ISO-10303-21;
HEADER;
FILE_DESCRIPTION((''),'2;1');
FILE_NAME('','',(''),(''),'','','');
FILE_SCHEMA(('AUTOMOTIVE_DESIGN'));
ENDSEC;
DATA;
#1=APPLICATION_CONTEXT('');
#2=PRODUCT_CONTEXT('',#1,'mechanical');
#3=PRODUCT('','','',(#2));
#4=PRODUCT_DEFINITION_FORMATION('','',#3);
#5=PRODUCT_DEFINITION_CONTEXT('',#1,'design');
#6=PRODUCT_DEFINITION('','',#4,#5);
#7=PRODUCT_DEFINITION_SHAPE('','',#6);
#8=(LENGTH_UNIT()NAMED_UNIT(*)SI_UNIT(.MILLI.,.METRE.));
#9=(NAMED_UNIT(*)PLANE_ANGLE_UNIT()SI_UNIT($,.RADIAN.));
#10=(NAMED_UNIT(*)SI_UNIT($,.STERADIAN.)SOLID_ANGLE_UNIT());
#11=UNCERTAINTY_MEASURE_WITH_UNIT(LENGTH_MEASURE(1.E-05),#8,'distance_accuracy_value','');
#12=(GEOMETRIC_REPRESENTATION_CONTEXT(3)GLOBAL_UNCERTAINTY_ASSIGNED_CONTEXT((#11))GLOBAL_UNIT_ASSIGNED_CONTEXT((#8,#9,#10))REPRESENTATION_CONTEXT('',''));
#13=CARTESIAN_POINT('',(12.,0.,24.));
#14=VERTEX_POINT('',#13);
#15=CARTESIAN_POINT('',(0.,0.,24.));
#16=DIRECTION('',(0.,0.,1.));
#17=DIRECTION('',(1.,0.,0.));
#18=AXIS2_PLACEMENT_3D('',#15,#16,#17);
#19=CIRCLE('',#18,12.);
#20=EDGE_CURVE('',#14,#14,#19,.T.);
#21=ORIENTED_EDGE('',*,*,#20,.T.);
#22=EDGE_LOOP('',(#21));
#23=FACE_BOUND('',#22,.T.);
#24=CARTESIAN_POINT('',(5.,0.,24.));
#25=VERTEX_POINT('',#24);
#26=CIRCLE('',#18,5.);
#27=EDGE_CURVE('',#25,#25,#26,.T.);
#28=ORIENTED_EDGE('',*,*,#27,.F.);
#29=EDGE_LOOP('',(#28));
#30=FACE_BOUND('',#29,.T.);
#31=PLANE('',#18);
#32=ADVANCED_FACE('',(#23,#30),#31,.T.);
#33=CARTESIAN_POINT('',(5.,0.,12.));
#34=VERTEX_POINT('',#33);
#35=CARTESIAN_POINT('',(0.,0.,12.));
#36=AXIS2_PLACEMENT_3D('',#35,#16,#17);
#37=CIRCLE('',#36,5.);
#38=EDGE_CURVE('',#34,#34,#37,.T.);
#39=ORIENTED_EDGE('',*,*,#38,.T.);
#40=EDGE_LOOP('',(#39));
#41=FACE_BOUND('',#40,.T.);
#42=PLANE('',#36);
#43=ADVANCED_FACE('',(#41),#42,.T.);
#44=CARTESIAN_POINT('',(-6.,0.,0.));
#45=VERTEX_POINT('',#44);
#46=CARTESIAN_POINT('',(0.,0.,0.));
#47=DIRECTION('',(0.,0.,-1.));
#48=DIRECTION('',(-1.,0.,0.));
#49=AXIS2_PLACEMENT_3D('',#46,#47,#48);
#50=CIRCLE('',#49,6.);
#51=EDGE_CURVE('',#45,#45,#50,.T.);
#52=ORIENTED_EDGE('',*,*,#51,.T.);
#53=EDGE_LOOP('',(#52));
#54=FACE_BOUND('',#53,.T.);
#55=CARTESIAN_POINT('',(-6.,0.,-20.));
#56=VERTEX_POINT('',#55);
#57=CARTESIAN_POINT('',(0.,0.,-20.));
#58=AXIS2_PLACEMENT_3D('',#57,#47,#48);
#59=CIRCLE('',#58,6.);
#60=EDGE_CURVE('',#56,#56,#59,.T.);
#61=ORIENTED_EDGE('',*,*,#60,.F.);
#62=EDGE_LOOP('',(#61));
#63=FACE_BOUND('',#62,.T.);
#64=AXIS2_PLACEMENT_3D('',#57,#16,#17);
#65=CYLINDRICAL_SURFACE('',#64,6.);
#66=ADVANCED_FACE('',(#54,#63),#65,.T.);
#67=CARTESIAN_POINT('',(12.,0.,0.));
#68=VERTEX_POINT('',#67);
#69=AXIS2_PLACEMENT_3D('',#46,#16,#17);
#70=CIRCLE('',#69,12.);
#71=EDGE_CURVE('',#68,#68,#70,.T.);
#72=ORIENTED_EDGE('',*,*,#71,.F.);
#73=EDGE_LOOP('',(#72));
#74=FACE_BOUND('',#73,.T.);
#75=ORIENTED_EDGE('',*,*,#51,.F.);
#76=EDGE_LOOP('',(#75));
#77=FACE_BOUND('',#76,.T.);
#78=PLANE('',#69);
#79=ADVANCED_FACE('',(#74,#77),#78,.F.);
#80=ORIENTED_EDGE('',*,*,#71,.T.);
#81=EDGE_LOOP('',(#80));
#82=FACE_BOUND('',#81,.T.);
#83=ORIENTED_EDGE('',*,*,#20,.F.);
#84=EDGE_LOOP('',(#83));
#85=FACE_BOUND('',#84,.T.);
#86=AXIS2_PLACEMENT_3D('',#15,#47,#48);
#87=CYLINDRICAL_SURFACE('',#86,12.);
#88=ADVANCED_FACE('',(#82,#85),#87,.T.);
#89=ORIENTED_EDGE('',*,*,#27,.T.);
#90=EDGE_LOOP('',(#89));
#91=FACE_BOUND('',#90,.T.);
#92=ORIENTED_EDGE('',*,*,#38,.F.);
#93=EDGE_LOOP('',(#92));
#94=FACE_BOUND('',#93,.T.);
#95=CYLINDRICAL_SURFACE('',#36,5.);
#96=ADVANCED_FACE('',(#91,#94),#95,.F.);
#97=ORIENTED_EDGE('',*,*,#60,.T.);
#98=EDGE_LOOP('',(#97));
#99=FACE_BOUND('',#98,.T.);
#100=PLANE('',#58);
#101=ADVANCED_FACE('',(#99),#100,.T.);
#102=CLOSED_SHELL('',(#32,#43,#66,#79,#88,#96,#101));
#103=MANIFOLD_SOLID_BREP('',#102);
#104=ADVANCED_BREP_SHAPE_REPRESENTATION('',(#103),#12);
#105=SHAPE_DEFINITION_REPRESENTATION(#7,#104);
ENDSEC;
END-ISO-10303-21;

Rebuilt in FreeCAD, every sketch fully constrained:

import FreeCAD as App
import Part
import Sketcher
Q = App.Units.Quantity

doc = App.newDocument("Part")
params = doc.addObject("Spreadsheet::Sheet", "Params")
for row, (alias, value) in enumerate([
    ("sketch1_diameter", "24 mm"),
    ("pad1_length", "24 mm"),
    ("sketch2_diameter", "10 mm"),
    ("pocket1_length", "12 mm"),
    ("sketch3_diameter", "12 mm"),
    ("pad2_length", "20 mm"),
], start=1):
    params.set(f"A{row}", alias)
    params.set(f"B{row}", "=" + value)
    params.setAlias(f"B{row}", alias)

body = doc.addObject("PartDesign::Body", "Body")

sketch1 = body.newObject("Sketcher::SketchObject", "Sketch")
sketch1.AttachmentSupport = (doc.getObject("XY_Plane"), [""])
sketch1.MapMode = "FlatFace"
sketch1.addGeometry(Part.Circle(App.Vector(0, 0, 0), App.Vector(0, 0, 1), 12), False)
sketch1.addConstraint(Sketcher.Constraint("Coincident", 0, 3, -1, 1))
sketch1.addConstraint(Sketcher.Constraint("Diameter", 0, Q("24 mm")))
sketch1.setExpression("Constraints[1]", "Params.sketch1_diameter")
pad1 = body.newObject("PartDesign::Pad", "Pad")
pad1.Profile = sketch1
pad1.setExpression("Length", "Params.pad1_length")

sketch2 = body.newObject("Sketcher::SketchObject", "Sketch001")
sketch2.AttachmentSupport = (doc.getObject("XY_Plane"), [""])
sketch2.MapMode = "FlatFace"
sketch2.AttachmentOffset = App.Placement(App.Vector(0, 0, 24), App.Rotation())
sketch2.addGeometry(Part.Circle(App.Vector(0, 0, 0), App.Vector(0, 0, 1), 5), False)
sketch2.addConstraint(Sketcher.Constraint("Coincident", 0, 3, -1, 1))
sketch2.addConstraint(Sketcher.Constraint("Diameter", 0, Q("10 mm")))
sketch2.setExpression("Constraints[1]", "Params.sketch2_diameter")
pocket1 = body.newObject("PartDesign::Pocket", "Pocket")
pocket1.Profile = sketch2
pocket1.setExpression("Length", "Params.pocket1_length")

sketch3 = body.newObject("Sketcher::SketchObject", "Sketch002")
sketch3.AttachmentSupport = (doc.getObject("XY_Plane"), [""])
sketch3.MapMode = "FlatFace"
sketch3.addGeometry(Part.Circle(App.Vector(0, 0, 0), App.Vector(0, 0, 1), 6), False)
sketch3.addConstraint(Sketcher.Constraint("Coincident", 0, 3, -1, 1))
sketch3.addConstraint(Sketcher.Constraint("Diameter", 0, Q("12 mm")))
sketch3.setExpression("Constraints[1]", "Params.sketch3_diameter")
pad2 = body.newObject("PartDesign::Pad", "Pad001")
pad2.Profile = sketch3
pad2.setExpression("Length", "Params.pad2_length")
pad2.Reversed = True

doc.recompute()
